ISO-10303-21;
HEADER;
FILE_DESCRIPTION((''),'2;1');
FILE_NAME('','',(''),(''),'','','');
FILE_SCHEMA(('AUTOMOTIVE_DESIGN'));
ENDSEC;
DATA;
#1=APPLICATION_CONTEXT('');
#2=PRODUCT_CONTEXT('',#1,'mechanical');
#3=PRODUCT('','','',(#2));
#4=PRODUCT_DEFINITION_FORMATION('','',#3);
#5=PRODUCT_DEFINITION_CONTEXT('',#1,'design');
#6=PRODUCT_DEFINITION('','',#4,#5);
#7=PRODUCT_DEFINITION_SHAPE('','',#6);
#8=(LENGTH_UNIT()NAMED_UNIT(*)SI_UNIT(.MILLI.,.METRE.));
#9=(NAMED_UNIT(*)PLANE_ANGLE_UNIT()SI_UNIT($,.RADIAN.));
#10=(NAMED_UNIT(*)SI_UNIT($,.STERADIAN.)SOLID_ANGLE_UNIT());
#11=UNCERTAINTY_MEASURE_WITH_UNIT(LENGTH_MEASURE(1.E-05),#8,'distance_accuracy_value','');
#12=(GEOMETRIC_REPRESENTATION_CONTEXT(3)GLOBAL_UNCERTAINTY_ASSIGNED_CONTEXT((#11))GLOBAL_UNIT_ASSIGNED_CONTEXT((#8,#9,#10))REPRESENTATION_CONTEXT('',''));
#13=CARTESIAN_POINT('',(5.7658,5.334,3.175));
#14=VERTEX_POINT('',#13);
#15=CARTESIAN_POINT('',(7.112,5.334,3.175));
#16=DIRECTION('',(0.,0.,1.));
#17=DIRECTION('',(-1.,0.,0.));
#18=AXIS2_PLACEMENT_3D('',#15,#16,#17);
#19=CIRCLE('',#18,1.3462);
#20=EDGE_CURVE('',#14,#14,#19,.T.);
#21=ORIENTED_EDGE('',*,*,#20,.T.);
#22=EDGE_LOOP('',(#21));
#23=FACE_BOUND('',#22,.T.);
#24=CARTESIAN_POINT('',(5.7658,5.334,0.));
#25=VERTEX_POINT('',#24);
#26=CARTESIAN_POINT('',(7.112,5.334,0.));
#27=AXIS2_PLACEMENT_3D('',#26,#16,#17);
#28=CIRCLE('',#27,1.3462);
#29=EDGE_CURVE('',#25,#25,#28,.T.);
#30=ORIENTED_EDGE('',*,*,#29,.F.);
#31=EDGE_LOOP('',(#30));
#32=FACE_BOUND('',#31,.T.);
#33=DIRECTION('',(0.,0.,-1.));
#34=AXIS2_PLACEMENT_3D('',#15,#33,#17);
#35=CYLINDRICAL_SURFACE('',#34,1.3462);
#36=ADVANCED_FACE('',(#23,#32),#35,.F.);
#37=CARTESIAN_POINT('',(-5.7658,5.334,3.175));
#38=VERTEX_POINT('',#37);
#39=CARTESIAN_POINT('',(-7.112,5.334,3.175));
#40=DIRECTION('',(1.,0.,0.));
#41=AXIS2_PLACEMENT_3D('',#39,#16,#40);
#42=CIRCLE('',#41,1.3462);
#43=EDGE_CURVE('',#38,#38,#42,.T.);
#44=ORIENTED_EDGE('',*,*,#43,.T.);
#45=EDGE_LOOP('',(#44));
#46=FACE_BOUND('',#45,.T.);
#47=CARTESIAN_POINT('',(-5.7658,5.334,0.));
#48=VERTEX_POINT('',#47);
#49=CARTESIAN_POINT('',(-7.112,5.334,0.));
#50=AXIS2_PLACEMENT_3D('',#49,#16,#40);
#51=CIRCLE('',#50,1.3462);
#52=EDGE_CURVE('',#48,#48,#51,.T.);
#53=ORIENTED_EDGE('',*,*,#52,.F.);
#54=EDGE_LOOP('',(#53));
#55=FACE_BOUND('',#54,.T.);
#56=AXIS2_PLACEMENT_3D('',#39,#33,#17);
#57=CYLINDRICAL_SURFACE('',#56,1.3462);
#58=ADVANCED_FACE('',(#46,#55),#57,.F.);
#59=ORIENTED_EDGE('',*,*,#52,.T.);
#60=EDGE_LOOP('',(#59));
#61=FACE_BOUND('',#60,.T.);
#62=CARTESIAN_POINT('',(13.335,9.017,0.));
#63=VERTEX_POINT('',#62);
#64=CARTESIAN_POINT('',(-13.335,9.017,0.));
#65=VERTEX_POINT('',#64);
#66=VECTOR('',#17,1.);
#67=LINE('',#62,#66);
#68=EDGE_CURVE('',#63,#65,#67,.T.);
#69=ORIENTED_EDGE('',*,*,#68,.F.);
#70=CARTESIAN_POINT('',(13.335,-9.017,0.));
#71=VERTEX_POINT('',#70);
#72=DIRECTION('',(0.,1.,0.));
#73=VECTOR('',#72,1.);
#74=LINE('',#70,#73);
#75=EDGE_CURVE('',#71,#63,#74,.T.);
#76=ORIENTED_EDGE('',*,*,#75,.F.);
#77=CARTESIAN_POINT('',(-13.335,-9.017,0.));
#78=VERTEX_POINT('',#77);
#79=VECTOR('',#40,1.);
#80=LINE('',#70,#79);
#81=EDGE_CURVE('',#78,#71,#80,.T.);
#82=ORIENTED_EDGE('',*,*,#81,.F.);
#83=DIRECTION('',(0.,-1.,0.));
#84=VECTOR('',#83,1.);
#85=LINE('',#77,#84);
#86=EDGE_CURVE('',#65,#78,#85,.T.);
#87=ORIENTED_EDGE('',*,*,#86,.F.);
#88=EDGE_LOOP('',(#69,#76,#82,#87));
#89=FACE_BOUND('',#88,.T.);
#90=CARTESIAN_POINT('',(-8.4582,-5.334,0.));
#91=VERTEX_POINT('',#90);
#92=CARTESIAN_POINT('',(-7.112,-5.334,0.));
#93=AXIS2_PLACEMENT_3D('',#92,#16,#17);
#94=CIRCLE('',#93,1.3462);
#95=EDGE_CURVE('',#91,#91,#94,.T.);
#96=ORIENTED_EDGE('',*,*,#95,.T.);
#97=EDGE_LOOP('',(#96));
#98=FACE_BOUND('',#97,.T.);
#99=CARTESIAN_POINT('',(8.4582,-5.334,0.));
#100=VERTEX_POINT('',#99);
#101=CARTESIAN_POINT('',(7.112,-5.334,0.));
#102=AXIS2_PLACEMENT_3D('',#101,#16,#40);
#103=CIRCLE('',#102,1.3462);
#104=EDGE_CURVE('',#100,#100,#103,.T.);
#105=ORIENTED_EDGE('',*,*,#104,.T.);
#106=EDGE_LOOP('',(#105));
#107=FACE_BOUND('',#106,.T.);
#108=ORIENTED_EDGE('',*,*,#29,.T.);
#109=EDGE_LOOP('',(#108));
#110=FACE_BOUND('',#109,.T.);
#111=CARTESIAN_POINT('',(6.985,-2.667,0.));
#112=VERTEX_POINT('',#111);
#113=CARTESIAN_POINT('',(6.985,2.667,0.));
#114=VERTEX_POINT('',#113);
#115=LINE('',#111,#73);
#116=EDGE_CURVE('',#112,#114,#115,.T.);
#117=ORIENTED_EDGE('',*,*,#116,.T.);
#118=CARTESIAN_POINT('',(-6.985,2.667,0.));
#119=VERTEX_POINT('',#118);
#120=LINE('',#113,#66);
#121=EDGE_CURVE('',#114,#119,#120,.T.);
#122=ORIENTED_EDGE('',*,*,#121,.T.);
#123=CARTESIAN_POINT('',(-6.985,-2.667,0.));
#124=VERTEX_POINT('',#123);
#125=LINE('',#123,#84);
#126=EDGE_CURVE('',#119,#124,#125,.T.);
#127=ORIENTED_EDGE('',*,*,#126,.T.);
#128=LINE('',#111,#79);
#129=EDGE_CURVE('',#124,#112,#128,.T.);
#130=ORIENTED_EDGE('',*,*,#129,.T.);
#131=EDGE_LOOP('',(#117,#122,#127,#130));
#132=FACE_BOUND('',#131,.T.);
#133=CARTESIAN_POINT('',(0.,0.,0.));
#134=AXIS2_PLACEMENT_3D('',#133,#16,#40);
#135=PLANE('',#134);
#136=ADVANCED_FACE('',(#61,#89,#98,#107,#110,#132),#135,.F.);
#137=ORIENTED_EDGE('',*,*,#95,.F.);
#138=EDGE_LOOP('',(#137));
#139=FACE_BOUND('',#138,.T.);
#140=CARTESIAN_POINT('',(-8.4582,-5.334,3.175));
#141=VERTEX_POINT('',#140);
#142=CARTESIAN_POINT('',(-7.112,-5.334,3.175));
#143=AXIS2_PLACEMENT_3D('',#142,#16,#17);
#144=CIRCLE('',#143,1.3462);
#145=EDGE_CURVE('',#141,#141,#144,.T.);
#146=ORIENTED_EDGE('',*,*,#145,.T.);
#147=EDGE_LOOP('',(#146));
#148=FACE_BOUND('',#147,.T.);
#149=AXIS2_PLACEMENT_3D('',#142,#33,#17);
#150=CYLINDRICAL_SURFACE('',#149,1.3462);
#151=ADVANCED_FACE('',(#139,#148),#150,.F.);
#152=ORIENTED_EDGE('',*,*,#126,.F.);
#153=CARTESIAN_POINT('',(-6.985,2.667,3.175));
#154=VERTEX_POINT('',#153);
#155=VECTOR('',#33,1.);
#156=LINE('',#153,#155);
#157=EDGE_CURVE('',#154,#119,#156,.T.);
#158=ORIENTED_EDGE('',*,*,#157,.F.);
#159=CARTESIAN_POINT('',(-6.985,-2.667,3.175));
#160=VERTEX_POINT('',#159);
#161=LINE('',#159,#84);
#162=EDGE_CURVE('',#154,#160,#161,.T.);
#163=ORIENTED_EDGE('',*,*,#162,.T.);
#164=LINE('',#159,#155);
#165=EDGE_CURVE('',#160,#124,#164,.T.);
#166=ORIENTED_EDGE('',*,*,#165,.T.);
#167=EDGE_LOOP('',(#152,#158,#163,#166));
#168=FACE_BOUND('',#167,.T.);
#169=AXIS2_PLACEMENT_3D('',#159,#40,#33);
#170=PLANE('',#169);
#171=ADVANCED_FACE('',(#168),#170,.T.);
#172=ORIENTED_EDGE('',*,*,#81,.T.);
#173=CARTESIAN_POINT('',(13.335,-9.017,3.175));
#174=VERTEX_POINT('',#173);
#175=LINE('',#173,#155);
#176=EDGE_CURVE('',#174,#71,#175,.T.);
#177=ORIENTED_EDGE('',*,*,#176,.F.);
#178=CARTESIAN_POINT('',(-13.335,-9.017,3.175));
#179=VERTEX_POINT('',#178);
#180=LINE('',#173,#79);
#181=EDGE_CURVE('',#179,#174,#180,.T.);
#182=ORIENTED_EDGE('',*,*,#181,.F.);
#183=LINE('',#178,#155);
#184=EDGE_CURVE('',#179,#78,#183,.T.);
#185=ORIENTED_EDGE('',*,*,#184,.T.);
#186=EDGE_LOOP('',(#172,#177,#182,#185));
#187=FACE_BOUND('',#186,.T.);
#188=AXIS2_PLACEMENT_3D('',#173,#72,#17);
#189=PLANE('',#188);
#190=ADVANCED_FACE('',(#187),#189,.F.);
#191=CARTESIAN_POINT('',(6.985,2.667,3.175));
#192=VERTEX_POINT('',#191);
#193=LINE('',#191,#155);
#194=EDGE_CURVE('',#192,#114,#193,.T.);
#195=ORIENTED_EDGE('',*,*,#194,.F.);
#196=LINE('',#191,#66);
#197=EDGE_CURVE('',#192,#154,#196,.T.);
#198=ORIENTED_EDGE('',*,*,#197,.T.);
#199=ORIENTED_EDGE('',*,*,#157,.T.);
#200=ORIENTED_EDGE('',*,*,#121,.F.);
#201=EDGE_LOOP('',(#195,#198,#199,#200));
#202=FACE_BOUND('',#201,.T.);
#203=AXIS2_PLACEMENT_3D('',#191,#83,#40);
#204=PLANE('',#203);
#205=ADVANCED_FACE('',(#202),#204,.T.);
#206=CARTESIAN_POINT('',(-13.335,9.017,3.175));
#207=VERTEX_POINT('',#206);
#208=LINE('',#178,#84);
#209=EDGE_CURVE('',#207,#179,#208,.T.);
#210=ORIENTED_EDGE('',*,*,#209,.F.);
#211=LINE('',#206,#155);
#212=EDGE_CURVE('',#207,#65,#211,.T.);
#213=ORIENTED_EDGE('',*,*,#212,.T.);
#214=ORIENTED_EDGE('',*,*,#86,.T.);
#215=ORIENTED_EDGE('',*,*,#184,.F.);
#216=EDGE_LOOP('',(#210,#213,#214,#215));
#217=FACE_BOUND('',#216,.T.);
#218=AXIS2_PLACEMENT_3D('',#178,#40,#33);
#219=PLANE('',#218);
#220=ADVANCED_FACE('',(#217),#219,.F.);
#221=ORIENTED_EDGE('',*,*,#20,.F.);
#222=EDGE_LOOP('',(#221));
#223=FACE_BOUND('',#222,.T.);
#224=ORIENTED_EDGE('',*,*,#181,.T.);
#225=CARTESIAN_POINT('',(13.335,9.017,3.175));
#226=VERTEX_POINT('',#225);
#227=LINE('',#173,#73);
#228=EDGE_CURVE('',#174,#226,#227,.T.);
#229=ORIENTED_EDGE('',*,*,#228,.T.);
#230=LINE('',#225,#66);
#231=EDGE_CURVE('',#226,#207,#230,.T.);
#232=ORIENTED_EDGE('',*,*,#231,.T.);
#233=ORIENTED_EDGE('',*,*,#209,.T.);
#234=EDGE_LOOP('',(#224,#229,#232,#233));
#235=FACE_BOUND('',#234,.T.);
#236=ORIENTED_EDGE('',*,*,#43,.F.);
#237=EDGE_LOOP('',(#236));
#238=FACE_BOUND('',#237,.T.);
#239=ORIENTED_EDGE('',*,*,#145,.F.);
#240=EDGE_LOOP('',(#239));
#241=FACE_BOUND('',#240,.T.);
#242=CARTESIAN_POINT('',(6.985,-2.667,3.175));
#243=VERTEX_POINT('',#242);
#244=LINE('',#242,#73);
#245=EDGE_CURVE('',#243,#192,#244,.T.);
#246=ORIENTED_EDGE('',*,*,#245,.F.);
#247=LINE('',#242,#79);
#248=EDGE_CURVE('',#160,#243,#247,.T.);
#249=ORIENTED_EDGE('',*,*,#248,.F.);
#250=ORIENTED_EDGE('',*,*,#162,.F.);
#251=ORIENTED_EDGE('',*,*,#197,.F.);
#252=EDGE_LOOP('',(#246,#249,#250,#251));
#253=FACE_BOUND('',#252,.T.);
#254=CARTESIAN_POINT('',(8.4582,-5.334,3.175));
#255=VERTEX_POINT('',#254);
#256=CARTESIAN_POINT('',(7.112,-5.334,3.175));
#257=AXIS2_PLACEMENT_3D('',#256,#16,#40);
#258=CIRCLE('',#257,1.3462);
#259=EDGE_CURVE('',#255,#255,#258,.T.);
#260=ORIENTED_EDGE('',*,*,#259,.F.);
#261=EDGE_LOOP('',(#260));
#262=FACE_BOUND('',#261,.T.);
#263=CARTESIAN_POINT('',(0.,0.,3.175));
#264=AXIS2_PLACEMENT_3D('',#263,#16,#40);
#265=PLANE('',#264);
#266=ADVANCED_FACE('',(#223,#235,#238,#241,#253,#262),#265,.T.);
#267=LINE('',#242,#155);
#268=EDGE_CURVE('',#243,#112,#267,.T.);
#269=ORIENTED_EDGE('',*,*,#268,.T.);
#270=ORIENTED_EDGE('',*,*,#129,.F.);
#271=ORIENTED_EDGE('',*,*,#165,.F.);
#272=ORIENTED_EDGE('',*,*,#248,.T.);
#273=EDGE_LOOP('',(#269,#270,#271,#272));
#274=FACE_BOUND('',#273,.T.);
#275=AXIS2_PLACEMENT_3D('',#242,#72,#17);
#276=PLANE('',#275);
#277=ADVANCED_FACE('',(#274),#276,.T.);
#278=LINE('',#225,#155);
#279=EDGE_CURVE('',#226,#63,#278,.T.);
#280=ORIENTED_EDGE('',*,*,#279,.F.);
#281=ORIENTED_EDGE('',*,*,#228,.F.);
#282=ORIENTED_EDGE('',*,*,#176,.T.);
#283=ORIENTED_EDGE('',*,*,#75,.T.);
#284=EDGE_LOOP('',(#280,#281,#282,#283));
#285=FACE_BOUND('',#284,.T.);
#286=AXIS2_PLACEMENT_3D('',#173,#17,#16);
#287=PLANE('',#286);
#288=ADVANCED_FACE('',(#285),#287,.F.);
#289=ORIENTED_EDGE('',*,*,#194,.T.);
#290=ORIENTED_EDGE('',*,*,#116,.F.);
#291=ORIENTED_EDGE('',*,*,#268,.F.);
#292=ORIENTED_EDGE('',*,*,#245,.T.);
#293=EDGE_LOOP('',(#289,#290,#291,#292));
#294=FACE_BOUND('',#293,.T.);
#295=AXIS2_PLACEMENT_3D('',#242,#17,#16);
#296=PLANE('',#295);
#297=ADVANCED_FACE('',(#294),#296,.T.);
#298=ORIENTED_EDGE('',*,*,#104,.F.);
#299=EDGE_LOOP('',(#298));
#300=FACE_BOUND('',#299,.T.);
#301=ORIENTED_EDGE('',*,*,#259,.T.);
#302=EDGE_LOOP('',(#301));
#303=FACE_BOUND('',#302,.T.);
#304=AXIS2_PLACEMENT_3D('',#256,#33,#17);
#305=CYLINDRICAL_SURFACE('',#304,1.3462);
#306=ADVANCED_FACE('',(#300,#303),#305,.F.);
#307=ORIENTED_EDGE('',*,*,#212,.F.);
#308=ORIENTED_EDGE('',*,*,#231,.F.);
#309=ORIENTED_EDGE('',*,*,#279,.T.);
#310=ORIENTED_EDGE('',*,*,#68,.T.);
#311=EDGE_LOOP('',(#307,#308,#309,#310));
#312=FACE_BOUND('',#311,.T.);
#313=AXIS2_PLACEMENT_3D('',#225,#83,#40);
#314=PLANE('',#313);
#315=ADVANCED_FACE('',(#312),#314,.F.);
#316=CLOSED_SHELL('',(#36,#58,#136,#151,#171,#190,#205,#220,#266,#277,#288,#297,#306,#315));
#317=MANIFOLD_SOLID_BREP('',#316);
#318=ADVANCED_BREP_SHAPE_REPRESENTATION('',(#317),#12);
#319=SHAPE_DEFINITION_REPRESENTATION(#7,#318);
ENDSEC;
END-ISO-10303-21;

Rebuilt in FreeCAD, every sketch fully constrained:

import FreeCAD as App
import Part
import Sketcher
from FreeCAD import Vector
Q = App.Units.Quantity


def add_polygon(sketch, points):
    """Adds a closed chain of lines whose ends are joined by coincident constraints."""
    first, n = sketch.GeometryCount, len(points)
    for a, b in zip(points, points[1:] + points[:1]):
        sketch.addGeometry(Part.LineSegment(App.Vector(*a, 0), App.Vector(*b, 0)), False)
    for i in range(n):
        sketch.addConstraint(Sketcher.Constraint("Coincident", first + i, 2, first + (i + 1) % n, 1))

doc = App.newDocument("Part")
body = doc.addObject("PartDesign::Body", "Body")

sketch1 = body.newObject("Sketcher::SketchObject", "Sketch")
sketch1.AttachmentSupport = (doc.getObject("XY_Plane"), [""])
sketch1.MapMode = "FlatFace"
add_polygon(sketch1, [(-13.3, 9), (-13.3, -9), (13.3, -9), (13.3, 9)])
sketch1.addGeometry(Part.Circle(Vector(-7.1, -5.3, 0), Vector(0, 0, 1), 1.3), False)
sketch1.addGeometry(Part.Circle(Vector(7.1, -5.3, 0), Vector(0, 0, 1), 1.3), False)
sketch1.addGeometry(Part.Circle(Vector(-7.1, 5.3, 0), Vector(0, 0, 1), 1.3), False)
add_polygon(sketch1, [(7, -2.7), (-7, -2.7), (-7, 2.7), (7, 2.7)])
sketch1.addGeometry(Part.Circle(Vector(7.1, 5.3, 0), Vector(0, 0, 1), 1.3), False)
sketch1.addConstraint(Sketcher.Constraint("Vertical", 0))
sketch1.addConstraint(Sketcher.Constraint("Horizontal", 1))
sketch1.addConstraint(Sketcher.Constraint("Vertical", 2))
sketch1.addConstraint(Sketcher.Constraint("Horizontal", 3))
sketch1.addConstraint(Sketcher.Constraint("Horizontal", 7))
sketch1.addConstraint(Sketcher.Constraint("Vertical", 8))
sketch1.addConstraint(Sketcher.Constraint("Horizontal", 9))
sketch1.addConstraint(Sketcher.Constraint("Vertical", 10))
sketch1.addConstraint(Sketcher.Constraint("Equal", 4, 5))
sketch1.addConstraint(Sketcher.Constraint("Equal", 5, 6))
sketch1.addConstraint(Sketcher.Constraint("Equal", 6, 11))
sketch1.addConstraint(Sketcher.Constraint("Symmetric", 5, 3, 6, 3, -1, 1))
sketch1.addConstraint(Sketcher.Constraint("Symmetric", 4, 3, 11, 3, -1, 1))
sketch1.addConstraint(Sketcher.Constraint("Symmetric", 0, 2, 2, 2, -1, 1))
sketch1.addConstraint(Sketcher.Constraint("Symmetric", 7, 2, 9, 2, -1, 1))
sketch1.addConstraint(Sketcher.Constraint("Symmetric", 4, 3, 5, 3, -2))
sketch1.addConstraint(Sketcher.Constraint("Diameter", 4, Q("0.106 in")))
sketch1.addConstraint(Sketcher.Constraint("DistanceX", 1, 1, 1, 2, Q("1.05 in")))
sketch1.addConstraint(Sketcher.Constraint("DistanceX", 7, 2, 7, 1, Q("0.55 in")))
sketch1.addConstraint(Sketcher.Constraint("DistanceY", 0, 2, 0, 1, Q("0.71 in")))
sketch1.addConstraint(Sketcher.Constraint("DistanceY", 8, 1, 8, 2, Q("0.21 in")))
sketch1.addConstraint(Sketcher.Constraint("DistanceX", 4, 3, -1, 1, Q("0.28 in")))
sketch1.addConstraint(Sketcher.Constraint("DistanceY", 4, 3, -1, 1, Q("0.21 in")))
pad1 = body.newObject("PartDesign::Pad", "Pad")
pad1.Profile = sketch1
pad1.Length = Q("0.125 in")

doc.recompute()
